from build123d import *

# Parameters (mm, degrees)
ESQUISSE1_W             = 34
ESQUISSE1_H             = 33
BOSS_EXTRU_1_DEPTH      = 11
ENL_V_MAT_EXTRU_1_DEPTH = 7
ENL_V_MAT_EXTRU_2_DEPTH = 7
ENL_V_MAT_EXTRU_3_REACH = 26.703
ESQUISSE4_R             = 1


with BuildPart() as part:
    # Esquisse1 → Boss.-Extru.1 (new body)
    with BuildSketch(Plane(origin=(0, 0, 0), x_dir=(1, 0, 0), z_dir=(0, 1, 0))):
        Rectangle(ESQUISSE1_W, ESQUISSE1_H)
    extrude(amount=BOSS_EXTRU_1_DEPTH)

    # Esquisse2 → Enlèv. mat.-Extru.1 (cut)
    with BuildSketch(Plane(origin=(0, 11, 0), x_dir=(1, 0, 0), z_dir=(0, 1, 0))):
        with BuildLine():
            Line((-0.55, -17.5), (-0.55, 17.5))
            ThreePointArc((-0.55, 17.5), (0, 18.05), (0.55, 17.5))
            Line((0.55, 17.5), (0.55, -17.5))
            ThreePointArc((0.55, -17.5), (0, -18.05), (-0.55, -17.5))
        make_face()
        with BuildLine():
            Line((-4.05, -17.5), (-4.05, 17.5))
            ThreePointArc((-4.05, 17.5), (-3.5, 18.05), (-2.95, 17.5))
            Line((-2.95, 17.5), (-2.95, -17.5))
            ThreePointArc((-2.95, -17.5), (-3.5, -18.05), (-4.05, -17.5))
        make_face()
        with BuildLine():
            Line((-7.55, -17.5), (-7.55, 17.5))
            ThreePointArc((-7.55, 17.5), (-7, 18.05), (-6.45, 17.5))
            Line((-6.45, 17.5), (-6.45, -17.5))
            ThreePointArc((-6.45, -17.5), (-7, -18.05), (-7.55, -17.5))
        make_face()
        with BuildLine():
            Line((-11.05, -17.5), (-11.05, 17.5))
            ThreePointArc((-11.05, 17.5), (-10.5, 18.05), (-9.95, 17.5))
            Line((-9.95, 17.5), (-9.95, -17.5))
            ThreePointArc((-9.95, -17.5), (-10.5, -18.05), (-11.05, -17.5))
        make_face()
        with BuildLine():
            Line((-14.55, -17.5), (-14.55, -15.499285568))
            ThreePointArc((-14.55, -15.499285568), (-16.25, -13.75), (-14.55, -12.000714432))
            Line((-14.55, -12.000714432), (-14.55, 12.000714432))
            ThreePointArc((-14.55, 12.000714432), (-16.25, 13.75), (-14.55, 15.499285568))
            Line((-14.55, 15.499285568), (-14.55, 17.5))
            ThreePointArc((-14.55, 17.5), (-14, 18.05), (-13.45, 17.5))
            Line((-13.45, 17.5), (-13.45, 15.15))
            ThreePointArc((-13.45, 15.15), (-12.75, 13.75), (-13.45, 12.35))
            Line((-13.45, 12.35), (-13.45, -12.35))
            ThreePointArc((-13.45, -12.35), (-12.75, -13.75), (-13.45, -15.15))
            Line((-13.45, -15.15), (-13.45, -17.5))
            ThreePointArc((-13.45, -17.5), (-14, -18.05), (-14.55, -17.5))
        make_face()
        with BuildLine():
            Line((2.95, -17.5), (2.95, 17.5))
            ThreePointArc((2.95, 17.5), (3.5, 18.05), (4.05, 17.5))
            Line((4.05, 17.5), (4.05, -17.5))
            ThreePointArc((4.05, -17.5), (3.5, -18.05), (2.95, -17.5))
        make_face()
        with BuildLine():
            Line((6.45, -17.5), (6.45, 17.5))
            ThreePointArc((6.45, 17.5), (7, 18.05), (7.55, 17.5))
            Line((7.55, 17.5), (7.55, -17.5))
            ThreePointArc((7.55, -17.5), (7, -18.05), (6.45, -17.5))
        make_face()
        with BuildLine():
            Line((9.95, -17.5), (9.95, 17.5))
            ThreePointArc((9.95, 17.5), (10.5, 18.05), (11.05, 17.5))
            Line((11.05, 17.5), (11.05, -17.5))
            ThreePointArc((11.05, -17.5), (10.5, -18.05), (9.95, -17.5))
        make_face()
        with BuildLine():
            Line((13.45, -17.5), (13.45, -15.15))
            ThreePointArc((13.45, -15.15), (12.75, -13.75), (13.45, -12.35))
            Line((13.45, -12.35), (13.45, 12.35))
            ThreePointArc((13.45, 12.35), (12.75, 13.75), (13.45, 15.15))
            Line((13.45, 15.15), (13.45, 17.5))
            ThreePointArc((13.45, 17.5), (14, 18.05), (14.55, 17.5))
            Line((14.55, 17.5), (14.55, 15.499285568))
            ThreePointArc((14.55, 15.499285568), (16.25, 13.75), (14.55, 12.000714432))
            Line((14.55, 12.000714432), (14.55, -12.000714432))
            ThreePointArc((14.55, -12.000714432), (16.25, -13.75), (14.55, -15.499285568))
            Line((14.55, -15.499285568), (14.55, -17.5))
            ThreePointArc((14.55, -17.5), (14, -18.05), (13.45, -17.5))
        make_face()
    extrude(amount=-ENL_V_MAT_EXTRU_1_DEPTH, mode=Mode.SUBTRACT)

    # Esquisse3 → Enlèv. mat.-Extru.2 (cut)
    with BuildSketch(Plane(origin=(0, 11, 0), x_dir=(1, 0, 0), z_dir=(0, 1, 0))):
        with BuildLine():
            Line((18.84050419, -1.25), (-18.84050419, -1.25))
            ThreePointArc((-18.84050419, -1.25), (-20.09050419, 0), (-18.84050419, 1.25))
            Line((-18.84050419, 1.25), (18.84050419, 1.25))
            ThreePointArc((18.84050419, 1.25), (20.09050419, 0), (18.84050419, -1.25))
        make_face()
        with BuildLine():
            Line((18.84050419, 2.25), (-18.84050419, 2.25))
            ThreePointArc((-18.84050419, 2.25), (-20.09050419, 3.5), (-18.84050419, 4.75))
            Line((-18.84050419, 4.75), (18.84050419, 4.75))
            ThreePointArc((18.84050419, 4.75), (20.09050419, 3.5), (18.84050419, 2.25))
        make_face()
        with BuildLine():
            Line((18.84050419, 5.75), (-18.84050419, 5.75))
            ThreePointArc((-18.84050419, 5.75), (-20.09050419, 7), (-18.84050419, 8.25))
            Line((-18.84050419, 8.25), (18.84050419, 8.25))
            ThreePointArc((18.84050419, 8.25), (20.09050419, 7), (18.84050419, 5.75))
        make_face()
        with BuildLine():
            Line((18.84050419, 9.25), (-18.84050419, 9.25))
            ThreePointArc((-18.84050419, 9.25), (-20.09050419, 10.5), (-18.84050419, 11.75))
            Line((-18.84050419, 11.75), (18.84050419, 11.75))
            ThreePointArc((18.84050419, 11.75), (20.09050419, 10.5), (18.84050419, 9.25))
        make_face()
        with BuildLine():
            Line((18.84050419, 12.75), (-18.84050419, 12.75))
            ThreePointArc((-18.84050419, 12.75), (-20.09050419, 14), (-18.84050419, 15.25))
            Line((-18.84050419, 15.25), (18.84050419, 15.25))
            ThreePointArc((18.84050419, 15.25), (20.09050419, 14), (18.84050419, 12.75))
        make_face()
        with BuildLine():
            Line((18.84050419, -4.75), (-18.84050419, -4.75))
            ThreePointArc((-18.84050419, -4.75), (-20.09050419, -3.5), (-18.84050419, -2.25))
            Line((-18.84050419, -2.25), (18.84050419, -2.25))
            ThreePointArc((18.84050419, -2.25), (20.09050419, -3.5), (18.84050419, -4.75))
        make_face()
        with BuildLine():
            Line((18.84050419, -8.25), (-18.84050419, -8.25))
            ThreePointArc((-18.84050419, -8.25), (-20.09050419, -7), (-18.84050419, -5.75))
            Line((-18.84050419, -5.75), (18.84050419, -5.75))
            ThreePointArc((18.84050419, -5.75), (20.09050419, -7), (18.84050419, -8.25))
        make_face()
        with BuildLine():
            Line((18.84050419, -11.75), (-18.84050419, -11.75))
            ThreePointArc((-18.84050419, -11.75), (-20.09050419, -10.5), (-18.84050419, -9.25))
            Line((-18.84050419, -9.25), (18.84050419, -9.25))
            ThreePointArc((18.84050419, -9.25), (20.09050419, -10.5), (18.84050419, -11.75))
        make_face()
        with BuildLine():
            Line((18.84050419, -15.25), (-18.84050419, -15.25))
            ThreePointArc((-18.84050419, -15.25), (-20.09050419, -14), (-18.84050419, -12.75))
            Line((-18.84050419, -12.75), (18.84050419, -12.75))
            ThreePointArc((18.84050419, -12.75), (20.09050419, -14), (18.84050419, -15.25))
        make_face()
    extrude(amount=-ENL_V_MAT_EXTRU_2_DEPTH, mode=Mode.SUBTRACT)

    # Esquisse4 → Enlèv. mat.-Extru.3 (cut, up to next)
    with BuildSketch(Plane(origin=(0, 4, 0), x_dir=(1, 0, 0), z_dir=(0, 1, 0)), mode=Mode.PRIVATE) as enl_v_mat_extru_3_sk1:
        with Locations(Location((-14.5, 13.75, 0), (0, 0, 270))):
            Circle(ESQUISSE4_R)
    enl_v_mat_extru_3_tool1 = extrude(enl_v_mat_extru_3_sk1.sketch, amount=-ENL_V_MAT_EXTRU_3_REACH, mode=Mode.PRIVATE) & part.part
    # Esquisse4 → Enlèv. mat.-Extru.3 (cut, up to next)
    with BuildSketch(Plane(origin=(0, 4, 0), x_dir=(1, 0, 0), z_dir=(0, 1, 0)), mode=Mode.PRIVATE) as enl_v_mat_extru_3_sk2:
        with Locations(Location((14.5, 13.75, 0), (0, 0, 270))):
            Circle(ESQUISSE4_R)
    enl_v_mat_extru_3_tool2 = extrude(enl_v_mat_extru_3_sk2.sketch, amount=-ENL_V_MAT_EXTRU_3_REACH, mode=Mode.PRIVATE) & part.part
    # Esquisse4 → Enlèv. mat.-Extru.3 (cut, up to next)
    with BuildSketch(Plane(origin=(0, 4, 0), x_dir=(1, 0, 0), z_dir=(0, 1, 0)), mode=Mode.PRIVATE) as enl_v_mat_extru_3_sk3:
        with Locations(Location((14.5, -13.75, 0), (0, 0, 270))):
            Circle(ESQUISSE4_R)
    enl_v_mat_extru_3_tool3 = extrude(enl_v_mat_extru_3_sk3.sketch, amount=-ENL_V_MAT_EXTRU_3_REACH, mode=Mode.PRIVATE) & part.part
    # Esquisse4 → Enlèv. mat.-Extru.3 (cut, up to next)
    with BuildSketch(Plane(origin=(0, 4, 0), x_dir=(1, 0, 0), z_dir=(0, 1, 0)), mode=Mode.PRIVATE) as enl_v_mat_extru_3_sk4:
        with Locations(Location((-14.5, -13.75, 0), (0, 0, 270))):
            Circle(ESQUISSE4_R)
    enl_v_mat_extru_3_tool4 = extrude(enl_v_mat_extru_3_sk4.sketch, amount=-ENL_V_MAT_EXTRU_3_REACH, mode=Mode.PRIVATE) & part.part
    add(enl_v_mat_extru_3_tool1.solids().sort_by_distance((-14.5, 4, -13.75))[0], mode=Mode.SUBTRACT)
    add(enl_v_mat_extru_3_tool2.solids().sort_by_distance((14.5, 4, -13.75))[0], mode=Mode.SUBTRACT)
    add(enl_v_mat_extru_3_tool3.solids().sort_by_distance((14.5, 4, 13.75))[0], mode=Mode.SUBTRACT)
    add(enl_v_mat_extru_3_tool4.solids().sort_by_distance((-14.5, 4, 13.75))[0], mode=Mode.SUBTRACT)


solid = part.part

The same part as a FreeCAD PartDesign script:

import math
import FreeCAD as App
import Part
import Sketcher

V = App.Vector
Q = App.Units.Quantity

doc = App.newDocument("Part")
body = doc.addObject("PartDesign::Body", "Body")

# Sketch on XZ plane
sketch1 = body.newObject("Sketcher::SketchObject", "Sketch")
sketch1.AttachmentSupport = (doc.getObject("XZ_Plane"), [""])
sketch1.MapMode = "FlatFace"
sketch1.addGeometry(Part.LineSegment(V(-17, -16, 0), V(-17, 16, 0)), False)
sketch1.addGeometry(Part.LineSegment(V(-17, 16, 0), V(17, 16, 0)), False)
sketch1.addGeometry(Part.LineSegment(V(17, 16, 0), V(17, -16, 0)), False)
sketch1.addGeometry(Part.LineSegment(V(17, -16, 0), V(-17, -16, 0)), False)
sketch1.addConstraint(Sketcher.Constraint("Coincident", 0, 2, 1, 1))
sketch1.addConstraint(Sketcher.Constraint("Coincident", 1, 2, 2, 1))
sketch1.addConstraint(Sketcher.Constraint("Coincident", 2, 2, 3, 1))
sketch1.addConstraint(Sketcher.Constraint("Coincident", 3, 2, 0, 1))
sketch1.addConstraint(Sketcher.Constraint("Vertical", 0))
sketch1.addConstraint(Sketcher.Constraint("Horizontal", 1))
sketch1.addConstraint(Sketcher.Constraint("Vertical", 2))
sketch1.addConstraint(Sketcher.Constraint("Horizontal", 3))
sketch1.addConstraint(Sketcher.Constraint("Symmetric", 0, 2, 2, 2, -1, 1))
sketch1.addConstraint(Sketcher.Constraint("DistanceX", 1, 1, 1, 2, Q("34 mm")))
sketch1.addConstraint(Sketcher.Constraint("DistanceY", 0, 1, 0, 2, Q("33 mm")))
pad1 = body.newObject("PartDesign::Pad", "Pad")
pad1.Profile = sketch1
pad1.Length = 11
pad1.Reversed = True

# Sketch on XZ plane
sketch2 = body.newObject("Sketcher::SketchObject", "Sketch001")
sketch2.AttachmentSupport = (doc.getObject("XZ_Plane"), [""])
sketch2.MapMode = "FlatFace"
sketch2.AttachmentOffset = App.Placement(V(0, 0, -11), App.Rotation())
sketch2.addGeometry(Part.LineSegment(V(-0.6, -17.5, 0), V(-0.6, 17.5, 0)), False)
sketch2.addGeometry(Part.ArcOfCircle(Part.Circle(V(0, 17.5, 0), V(0, 0, 1), 0.6), math.radians(0), math.radians(180)), False)
sketch2.addGeometry(Part.LineSegment(V(0.6, 17.5, 0), V(0.6, -17.5, 0)), False)
sketch2.addGeometry(Part.ArcOfCircle(Part.Circle(V(0, -17.5, 0), V(0, 0, 1), 0.6), math.radians(180), math.radians(360)), False)
sketch2.addGeometry(Part.LineSegment(V(-4, -17.5, 0), V(-4, 17.5, 0)), False)
sketch2.addGeometry(Part.ArcOfCircle(Part.Circle(V(-3.5, 17.5, 0), V(0, 0, 1), 0.6), math.radians(0), math.radians(180)), False)
sketch2.addGeometry(Part.LineSegment(V(-3, 17.5, 0), V(-3, -17.5, 0)), False)
sketch2.addGeometry(Part.ArcOfCircle(Part.Circle(V(-3.5, -17.5, 0), V(0, 0, 1), 0.6), math.radians(180), math.radians(360)), False)
sketch2.addGeometry(Part.LineSegment(V(-7.5, -17.5, 0), V(-7.5, 17.5, 0)), False)
sketch2.addGeometry(Part.ArcOfCircle(Part.Circle(V(-7, 17.5, 0), V(0, 0, 1), 0.6), math.radians(0), math.radians(180)), False)
sketch2.addGeometry(Part.LineSegment(V(-6.5, 17.5, 0), V(-6.5, -17.5, 0)), False)
sketch2.addGeometry(Part.ArcOfCircle(Part.Circle(V(-7, -17.5, 0), V(0, 0, 1), 0.6), math.radians(180), math.radians(360)), False)
sketch2.addGeometry(Part.LineSegment(V(-11.1, -17.5, 0), V(-11.1, 17.5, 0)), False)
sketch2.addGeometry(Part.ArcOfCircle(Part.Circle(V(-10.5, 17.5, 0), V(0, 0, 1), 0.6), math.radians(0), math.radians(180)), False)
sketch2.addGeometry(Part.LineSegment(V(-9.9, 17.5, 0), V(-9.9, -17.5, 0)), False)
sketch2.addGeometry(Part.ArcOfCircle(Part.Circle(V(-10.5, -17.5, 0), V(0, 0, 1), 0.6), math.radians(180), math.radians(360)), False)
sketch2.addGeometry(Part.LineSegment(V(-14.6, 15.5, 0), V(-14.6, 17.5, 0)), False)
sketch2.addGeometry(Part.ArcOfCircle(Part.Circle(V(-14, 17.5, 0), V(0, 0, 1), 0.6), math.radians(0), math.radians(180)), False)
sketch2.addGeometry(Part.LineSegment(V(-13.4, 17.5, 0), V(-13.4, 15.2, 0)), False)
sketch2.addGeometry(Part.ArcOfCircle(Part.Circle(V(-14.5, 13.8, 0), V(0, 0, 1), 1.8), math.radians(-53), math.radians(53)), False)
sketch2.addGeometry(Part.LineSegment(V(-13.4, 12.3, 0), V(-13.4, -12.3, 0)), False)
sketch2.addGeometry(Part.ArcOfCircle(Part.Circle(V(-14.5, -13.8, 0), V(0, 0, 1), 1.8), math.radians(-53), math.radians(53)), False)
sketch2.addGeometry(Part.LineSegment(V(-13.4, -15.2, 0), V(-13.4, -17.5, 0)), False)
sketch2.addGeometry(Part.ArcOfCircle(Part.Circle(V(-14, -17.5, 0), V(0, 0, 1), 0.6), math.radians(180), math.radians(360)), False)
sketch2.addGeometry(Part.LineSegment(V(-14.6, -17.5, 0), V(-14.6, -15.5, 0)), False)
sketch2.addGeometry(Part.ArcOfCircle(Part.Circle(V(-14.5, -13.8, 0), V(0, 0, 1), 1.8), math.radians(92), math.radians(268)), False)
sketch2.addGeometry(Part.LineSegment(V(-14.6, -12, 0), V(-14.6, 12, 0)), False)
sketch2.addGeometry(Part.ArcOfCircle(Part.Circle(V(-14.5, 13.8, 0), V(0, 0, 1), 1.8), math.radians(92), math.radians(268)), False)
sketch2.addGeometry(Part.LineSegment(V(3, -17.5, 0), V(3, 17.5, 0)), False)
sketch2.addGeometry(Part.ArcOfCircle(Part.Circle(V(3.5, 17.5, 0), V(0, 0, 1), 0.6), math.radians(0), math.radians(180)), False)
sketch2.addGeometry(Part.LineSegment(V(4, 17.5, 0), V(4, -17.5, 0)), False)
sketch2.addGeometry(Part.ArcOfCircle(Part.Circle(V(3.5, -17.5, 0), V(0, 0, 1), 0.6), math.radians(180), math.radians(360)), False)
sketch2.addGeometry(Part.LineSegment(V(6.5, -17.5, 0), V(6.5, 17.5, 0)), False)
sketch2.addGeometry(Part.ArcOfCircle(Part.Circle(V(7, 17.5, 0), V(0, 0, 1), 0.6), math.radians(0), math.radians(180)), False)
sketch2.addGeometry(Part.LineSegment(V(7.5, 17.5, 0), V(7.5, -17.5, 0)), False)
sketch2.addGeometry(Part.ArcOfCircle(Part.Circle(V(7, -17.5, 0), V(0, 0, 1), 0.6), math.radians(180), math.radians(360)), False)
sketch2.addGeometry(Part.LineSegment(V(9.9, -17.5, 0), V(9.9, 17.5, 0)), False)
sketch2.addGeometry(Part.ArcOfCircle(Part.Circle(V(10.5, 17.5, 0), V(0, 0, 1), 0.6), math.radians(0), math.radians(180)), False)
sketch2.addGeometry(Part.LineSegment(V(11.1, 17.5, 0), V(11.1, -17.5, 0)), False)
sketch2.addGeometry(Part.ArcOfCircle(Part.Circle(V(10.5, -17.5, 0), V(0, 0, 1), 0.6), math.radians(180), math.radians(360)), False)
sketch2.addGeometry(Part.LineSegment(V(13.4, 15.2, 0), V(13.4, 17.5, 0)), False)
sketch2.addGeometry(Part.ArcOfCircle(Part.Circle(V(14, 17.5, 0), V(0, 0, 1), 0.6), math.radians(0), math.radians(180)), False)
sketch2.addGeometry(Part.LineSegment(V(14.6, 17.5, 0), V(14.6, 15.5, 0)), False)
sketch2.addGeometry(Part.ArcOfCircle(Part.Circle(V(14.5, 13.8, 0), V(0, 0, 1), 1.8), math.radians(-88), math.radians(88)), False)
sketch2.addGeometry(Part.LineSegment(V(14.6, 12, 0), V(14.6, -12, 0)), False)
sketch2.addGeometry(Part.ArcOfCircle(Part.Circle(V(14.5, -13.8, 0), V(0, 0, 1), 1.8), math.radians(-88), math.radians(88)), False)
sketch2.addGeometry(Part.LineSegment(V(14.6, -15.5, 0), V(14.6, -17.5, 0)), False)
sketch2.addGeometry(Part.ArcOfCircle(Part.Circle(V(14, -17.5, 0), V(0, 0, 1), 0.6), math.radians(180), math.radians(360)), False)
sketch2.addGeometry(Part.LineSegment(V(13.4, -17.5, 0), V(13.4, -15.2, 0)), False)
sketch2.addGeometry(Part.ArcOfCircle(Part.Circle(V(14.5, -13.8, 0), V(0, 0, 1), 1.8), math.radians(127), math.radians(233)), False)
sketch2.addGeometry(Part.LineSegment(V(13.4, -12.3, 0), V(13.4, 12.3, 0)), False)
sketch2.addGeometry(Part.ArcOfCircle(Part.Circle(V(14.5, 13.8, 0), V(0, 0, 1), 1.8), math.radians(127), math.radians(233)), False)
sketch2.addConstraint(Sketcher.Constraint("Tangent", 0, 2, 1, 2))
sketch2.addConstraint(Sketcher.Constraint("Tangent", 1, 1, 2, 1))
sketch2.addConstraint(Sketcher.Constraint("Tangent", 2, 2, 3, 2))
sketch2.addConstraint(Sketcher.Constraint("Tangent", 3, 1, 0, 1))
sketch2.addConstraint(Sketcher.Constraint("Tangent", 4, 2, 5, 2))
sketch2.addConstraint(Sketcher.Constraint("Tangent", 5, 1, 6, 1))
sketch2.addConstraint(Sketcher.Constraint("Tangent", 6, 2, 7, 2))
sketch2.addConstraint(Sketcher.Constraint("Tangent", 7, 1, 4, 1))
sketch2.addConstraint(Sketcher.Constraint("Tangent", 8, 2, 9, 2))
sketch2.addConstraint(Sketcher.Constraint("Tangent", 9, 1, 10, 1))
sketch2.addConstraint(Sketcher.Constraint("Tangent", 10, 2, 11, 2))
sketch2.addConstraint(Sketcher.Constraint("Tangent", 11, 1, 8, 1))
sketch2.addConstraint(Sketcher.Constraint("Tangent", 12, 2, 13, 2))
sketch2.addConstraint(Sketcher.Constraint("Tangent", 13, 1, 14, 1))
sketch2.addConstraint(Sketcher.Constraint("Tangent", 14, 2, 15, 2))
sketch2.addConstraint(Sketcher.Constraint("Tangent", 15, 1, 12, 1))
sketch2.addConstraint(Sketcher.Constraint("Tangent", 16, 2, 17, 2))
sketch2.addConstraint(Sketcher.Constraint("Tangent", 17, 1, 18, 1))
sketch2.addConstraint(Sketcher.Constraint("Coincident", 18, 2, 19, 2))
sketch2.addConstraint(Sketcher.Constraint("Coincident", 19, 1, 20, 1))
sketch2.addConstraint(Sketcher.Constraint("Coincident", 20, 2, 21, 2))
sketch2.addConstraint(Sketcher.Constraint("Coincident", 21, 1, 22, 1))
sketch2.addConstraint(Sketcher.Constraint("Tangent", 22, 2, 23, 2))
sketch2.addConstraint(Sketcher.Constraint("Tangent", 23, 1, 24, 1))
sketch2.addConstraint(Sketcher.Constraint("Coincident", 24, 2, 25, 2))
sketch2.addConstraint(Sketcher.Constraint("Coincident", 25, 1, 26, 1))
sketch2.addConstraint(Sketcher.Constraint("Coincident", 26, 2, 27, 2))
sketch2.addConstraint(Sketcher.Constraint("Coincident", 27, 1, 16, 1))
sketch2.addConstraint(Sketcher.Constraint("Tangent", 28, 2, 29, 2))
sketch2.addConstraint(Sketcher.Constraint("Tangent", 29, 1, 30, 1))
sketch2.addConstraint(Sketcher.Constraint("Tangent", 30, 2, 31, 2))
sketch2.addConstraint(Sketcher.Constraint("Tangent", 31, 1, 28, 1))
sketch2.addConstraint(Sketcher.Constraint("Tangent", 32, 2, 33, 2))
sketch2.addConstraint(Sketcher.Constraint("Tangent", 33, 1, 34, 1))
sketch2.addConstraint(Sketcher.Constraint("Tangent", 34, 2, 35, 2))
sketch2.addConstraint(Sketcher.Constraint("Tangent", 35, 1, 32, 1))
sketch2.addConstraint(Sketcher.Constraint("Tangent", 36, 2, 37, 2))
sketch2.addConstraint(Sketcher.Constraint("Tangent", 37, 1, 38, 1))
sketch2.addConstraint(Sketcher.Constraint("Tangent", 38, 2, 39, 2))
sketch2.addConstraint(Sketcher.Constraint("Tangent", 39, 1, 36, 1))
sketch2.addConstraint(Sketcher.Constraint("Tangent", 40, 2, 41, 2))
sketch2.addConstraint(Sketcher.Constraint("Tangent", 41, 1, 42, 1))
sketch2.addConstraint(Sketcher.Constraint("Coincident", 42, 2, 43, 2))
sketch2.addConstraint(Sketcher.Constraint("Coincident", 43, 1, 44, 1))
sketch2.addConstraint(Sketcher.Constraint("Coincident", 44, 2, 45, 2))
sketch2.addConstraint(Sketcher.Constraint("Coincident", 45, 1, 46, 1))
sketch2.addConstraint(Sketcher.Constraint("Tangent", 46, 2, 47, 2))
sketch2.addConstraint(Sketcher.Constraint("Tangent", 47, 1, 48, 1))
sketch2.addConstraint(Sketcher.Constraint("Coincident", 48, 2, 49, 2))
sketch2.addConstraint(Sketcher.Constraint("Coincident", 49, 1, 50, 1))
sketch2.addConstraint(Sketcher.Constraint("Coincident", 50, 2, 51, 2))
sketch2.addConstraint(Sketcher.Constraint("Coincident", 51, 1, 40, 1))
sketch2.addConstraint(Sketcher.Constraint("Vertical", 0))
sketch2.addConstraint(Sketcher.Constraint("Vertical", 2))
sketch2.addConstraint(Sketcher.Constraint("Vertical", 4))
sketch2.addConstraint(Sketcher.Constraint("Vertical", 6))
sketch2.addConstraint(Sketcher.Constraint("Vertical", 8))
sketch2.addConstraint(Sketcher.Constraint("Vertical", 10))
sketch2.addConstraint(Sketcher.Constraint("Vertical", 12))
sketch2.addConstraint(Sketcher.Constraint("Vertical", 14))
sketch2.addConstraint(Sketcher.Constraint("Vertical", 16))
sketch2.addConstraint(Sketcher.Constraint("Vertical", 18))
sketch2.addConstraint(Sketcher.Constraint("Vertical", 20))
sketch2.addConstraint(Sketcher.Constraint("Vertical", 22))
sketch2.addConstraint(Sketcher.Constraint("Vertical", 24))
sketch2.addConstraint(Sketcher.Constraint("Vertical", 26))
sketch2.addConstraint(Sketcher.Constraint("Vertical", 28))
sketch2.addConstraint(Sketcher.Constraint("Vertical", 30))
sketch2.addConstraint(Sketcher.Constraint("Vertical", 32))
sketch2.addConstraint(Sketcher.Constraint("Vertical", 34))
sketch2.addConstraint(Sketcher.Constraint("Vertical", 36))
sketch2.addConstraint(Sketcher.Constraint("Vertical", 38))
sketch2.addConstraint(Sketcher.Constraint("Vertical", 40))
sketch2.addConstraint(Sketcher.Constraint("Vertical", 42))
sketch2.addConstraint(Sketcher.Constraint("Vertical", 44))
sketch2.addConstraint(Sketcher.Constraint("Vertical", 46))
sketch2.addConstraint(Sketcher.Constraint("Vertical", 48))
sketch2.addConstraint(Sketcher.Constraint("Vertical", 50))
sketch2.addConstraint(Sketcher.Constraint("Coincident", 25, 3, 21, 3))
sketch2.addConstraint(Sketcher.Constraint("Coincident", 27, 3, 19, 3))
sketch2.addConstraint(Sketcher.Constraint("Coincident", 49, 3, 45, 3))
sketch2.addConstraint(Sketcher.Constraint("Coincident", 51, 3, 43, 3))
sketch2.addConstraint(Sketcher.Constraint("Equal", 3, 5))
sketch2.addConstraint(Sketcher.Constraint("Equal", 7, 9))
sketch2.addConstraint(Sketcher.Constraint("Equal", 11, 13))
sketch2.addConstraint(Sketcher.Constraint("Equal", 15, 17))
sketch2.addConstraint(Sketcher.Constraint("Equal", 19, 21))
sketch2.addConstraint(Sketcher.Constraint("Equal", 17, 23))
sketch2.addConstraint(Sketcher.Constraint("Equal", 21, 25))
sketch2.addConstraint(Sketcher.Constraint("Equal", 25, 27))
sketch2.addConstraint(Sketcher.Constraint("Equal", 23, 29))
sketch2.addConstraint(Sketcher.Constraint("Equal", 31, 33))
sketch2.addConstraint(Sketcher.Constraint("Equal", 35, 37))
sketch2.addConstraint(Sketcher.Constraint("Equal", 39, 41))
sketch2.addConstraint(Sketcher.Constraint("Equal", 27, 43))
sketch2.addConstraint(Sketcher.Constraint("Equal", 43, 45))
sketch2.addConstraint(Sketcher.Constraint("Equal", 41, 47))
sketch2.addConstraint(Sketcher.Constraint("Equal", 45, 49))
sketch2.addConstraint(Sketcher.Constraint("Equal", 49, 51))
sketch2.addConstraint(Sketcher.Constraint("Symmetric", 1, 3, 3, 3, -1, 1))
sketch2.addConstraint(Sketcher.Constraint("Symmetric", 7, 3, 29, 3, -1, 1))
sketch2.addConstraint(Sketcher.Constraint("Symmetric", 11, 3, 33, 3, -1, 1))
sketch2.addConstraint(Sketcher.Constraint("Symmetric", 15, 3, 37, 3, -1, 1))
sketch2.addConstraint(Sketcher.Constraint("Symmetric", 23, 3, 41, 3, -1, 1))
sketch2.addConstraint(Sketcher.Constraint("Symmetric", 21, 3, 43, 3, -1, 1))
sketch2.addConstraint(Sketcher.Constraint("Symmetric", 19, 3, 45, 3, -1, 1))
sketch2.addConstraint(Sketcher.Constraint("Symmetric", 17, 3, 47, 3, -1, 1))
sketch2.addConstraint(Sketcher.Constraint("Symmetric", 17, 3, 41, 3, -2))
sketch2.addConstraint(Sketcher.Constraint("Symmetric", 19, 3, 43, 3, -2))
sketch2.addConstraint(Sketcher.Constraint("Horizontal", 1, 3, 5, 3))
sketch2.addConstraint(Sketcher.Constraint("Horizontal", 3, 3, 7, 3))
sketch2.addConstraint(Sketcher.Constraint("Horizontal", 5, 3, 9, 3))
sketch2.addConstraint(Sketcher.Constraint("Horizontal", 7, 3, 11, 3))
sketch2.addConstraint(Sketcher.Constraint("Horizontal", 9, 3, 13, 3))
sketch2.addConstraint(Sketcher.Constraint("Horizontal", 11, 3, 15, 3))
sketch2.addConstraint(Sketcher.Constraint("Horizontal", 13, 3, 17, 3))
sketch2.addConstraint(Sketcher.Constraint("Horizontal", 23, 3, 31, 3))
sketch2.addConstraint(Sketcher.Constraint("Horizontal", 31, 3, 35, 3))
sketch2.addConstraint(Sketcher.Constraint("Horizontal", 35, 3, 39, 3))
sketch2.addConstraint(Sketcher.Constraint("Horizontal", 26, 2, 43, 1))
sketch2.addConstraint(Sketcher.Constraint("Horizontal", 20, 2, 49, 1))
sketch2.addConstraint(Sketcher.Constraint("Vertical", 18, 2, 19, 1))
sketch2.addConstraint(Sketcher.Constraint("Vertical", 24, 2, 25, 1))
sketch2.addConstraint(Sketcher.Constraint("DistanceY", 0, 1, 0, 2, Q("35 mm")))
sketch2.addConstraint(Sketcher.Constraint("Radius", 1, Q("0.55 mm")))
sketch2.addConstraint(Sketcher.Constraint("Radius", 19, Q("1.75 mm")))
sketch2.addConstraint(Sketcher.Constraint("DistanceY", 20, 2, 20, 1, Q("24.7 mm")))
sketch2.addConstraint(Sketcher.Constraint("DistanceX", 9, 3, -1, 1, Q("7 mm")))
sketch2.addConstraint(Sketcher.Constraint("DistanceX", 17, 3, -1, 1, Q("14 mm")))
sketch2.addConstraint(Sketcher.Constraint("DistanceY", 18, 2, 18, 1, Q("2.35 mm")))
sketch2.addConstraint(Sketcher.Constraint("DistanceX", 5, 3, -1, 1, Q("3.5 mm")))
sketch2.addConstraint(Sketcher.Constraint("DistanceX", 13, 3, -1, 1, Q("10.5 mm")))
pocket1 = body.newObject("PartDesign::Pocket", "Pocket")
pocket1.Profile = sketch2
pocket1.Length = 7
pocket1.Reversed = True

# Sketch on XZ plane
sketch3 = body.newObject("Sketcher::SketchObject", "Sketch002")
sketch3.AttachmentSupport = (doc.getObject("XZ_Plane"), [""])
sketch3.MapMode = "FlatFace"
sketch3.AttachmentOffset = App.Placement(V(0, 0, -11), App.Rotation())
sketch3.addGeometry(Part.LineSegment(V(-18.8, 1.2, 0), V(18.8, 1.2, 0)), False)
sketch3.addGeometry(Part.ArcOfCircle(Part.Circle(V(18.8, 0, 0), V(0, 0, 1), 1.2), math.radians(-90), math.radians(90)), False)
sketch3.addGeometry(Part.LineSegment(V(18.8, -1.2, 0), V(-18.8, -1.2, 0)), False)
sketch3.addGeometry(Part.ArcOfCircle(Part.Circle(V(-18.8, 0, 0), V(0, 0, 1), 1.2), math.radians(90), math.radians(270)), False)
sketch3.addGeometry(Part.LineSegment(V(-18.8, -2.2, 0), V(18.8, -2.2, 0)), False)
sketch3.addGeometry(Part.ArcOfCircle(Part.Circle(V(18.8, -3.5, 0), V(0, 0, 1), 1.2), math.radians(-90), math.radians(90)), False)
sketch3.addGeometry(Part.LineSegment(V(18.8, -4.8, 0), V(-18.8, -4.8, 0)), False)
sketch3.addGeometry(Part.ArcOfCircle(Part.Circle(V(-18.8, -3.5, 0), V(0, 0, 1), 1.2), math.radians(90), math.radians(270)), False)
sketch3.addGeometry(Part.LineSegment(V(-18.8, -5.8, 0), V(18.8, -5.8, 0)), False)
sketch3.addGeometry(Part.ArcOfCircle(Part.Circle(V(18.8, -7, 0), V(0, 0, 1), 1.2), math.radians(-90), math.radians(90)), False)
sketch3.addGeometry(Part.LineSegment(V(18.8, -8.2, 0), V(-18.8, -8.2, 0)), False)
sketch3.addGeometry(Part.ArcOfCircle(Part.Circle(V(-18.8, -7, 0), V(0, 0, 1), 1.2), math.radians(90), math.radians(270)), False)
sketch3.addGeometry(Part.LineSegment(V(-18.8, -9.2, 0), V(18.8, -9.2, 0)), False)
sketch3.addGeometry(Part.ArcOfCircle(Part.Circle(V(18.8, -10.5, 0), V(0, 0, 1), 1.2), math.radians(-90), math.radians(90)), False)
sketch3.addGeometry(Part.LineSegment(V(18.8, -11.8, 0), V(-18.8, -11.8, 0)), False)
sketch3.addGeometry(Part.ArcOfCircle(Part.Circle(V(-18.8, -10.5, 0), V(0, 0, 1), 1.2), math.radians(90), math.radians(270)), False)
sketch3.addGeometry(Part.LineSegment(V(-18.8, -12.8, 0), V(18.8, -12.8, 0)), False)
sketch3.addGeometry(Part.ArcOfCircle(Part.Circle(V(18.8, -14, 0), V(0, 0, 1), 1.2), math.radians(-90), math.radians(90)), False)
sketch3.addGeometry(Part.LineSegment(V(18.8, -15.2, 0), V(-18.8, -15.2, 0)), False)
sketch3.addGeometry(Part.ArcOfCircle(Part.Circle(V(-18.8, -14, 0), V(0, 0, 1), 1.2), math.radians(90), math.radians(270)), False)
sketch3.addGeometry(Part.LineSegment(V(-18.8, 4.8, 0), V(18.8, 4.8, 0)), False)
sketch3.addGeometry(Part.ArcOfCircle(Part.Circle(V(18.8, 3.5, 0), V(0, 0, 1), 1.2), math.radians(-90), math.radians(90)), False)
sketch3.addGeometry(Part.LineSegment(V(18.8, 2.2, 0), V(-18.8, 2.2, 0)), False)
sketch3.addGeometry(Part.ArcOfCircle(Part.Circle(V(-18.8, 3.5, 0), V(0, 0, 1), 1.2), math.radians(90), math.radians(270)), False)
sketch3.addGeometry(Part.LineSegment(V(-18.8, 8.2, 0), V(18.8, 8.2, 0)), False)
sketch3.addGeometry(Part.ArcOfCircle(Part.Circle(V(18.8, 7, 0), V(0, 0, 1), 1.2), math.radians(-90), math.radians(90)), False)
sketch3.addGeometry(Part.LineSegment(V(18.8, 5.8, 0), V(-18.8, 5.8, 0)), False)
sketch3.addGeometry(Part.ArcOfCircle(Part.Circle(V(-18.8, 7, 0), V(0, 0, 1), 1.2), math.radians(90), math.radians(270)), False)
sketch3.addGeometry(Part.LineSegment(V(-18.8, 11.8, 0), V(18.8, 11.8, 0)), False)
sketch3.addGeometry(Part.ArcOfCircle(Part.Circle(V(18.8, 10.5, 0), V(0, 0, 1), 1.2), math.radians(-90), math.radians(90)), False)
sketch3.addGeometry(Part.LineSegment(V(18.8, 9.2, 0), V(-18.8, 9.2, 0)), False)
sketch3.addGeometry(Part.ArcOfCircle(Part.Circle(V(-18.8, 10.5, 0), V(0, 0, 1), 1.2), math.radians(90), math.radians(270)), False)
sketch3.addGeometry(Part.LineSegment(V(-18.8, 15.2, 0), V(18.8, 15.2, 0)), False)
sketch3.addGeometry(Part.ArcOfCircle(Part.Circle(V(18.8, 14, 0), V(0, 0, 1), 1.2), math.radians(-90), math.radians(90)), False)
sketch3.addGeometry(Part.LineSegment(V(18.8, 12.8, 0), V(-18.8, 12.8, 0)), False)
sketch3.addGeometry(Part.ArcOfCircle(Part.Circle(V(-18.8, 14, 0), V(0, 0, 1), 1.2), math.radians(90), math.radians(270)), False)
sketch3.addConstraint(Sketcher.Constraint("Tangent", 0, 2, 1, 2))
sketch3.addConstraint(Sketcher.Constraint("Tangent", 1, 1, 2, 1))
sketch3.addConstraint(Sketcher.Constraint("Tangent", 2, 2, 3, 2))
sketch3.addConstraint(Sketcher.Constraint("Tangent", 3, 1, 0, 1))
sketch3.addConstraint(Sketcher.Constraint("Tangent", 4, 2, 5, 2))
sketch3.addConstraint(Sketcher.Constraint("Tangent", 5, 1, 6, 1))
sketch3.addConstraint(Sketcher.Constraint("Tangent", 6, 2, 7, 2))
sketch3.addConstraint(Sketcher.Constraint("Tangent", 7, 1, 4, 1))
sketch3.addConstraint(Sketcher.Constraint("Tangent", 8, 2, 9, 2))
sketch3.addConstraint(Sketcher.Constraint("Tangent", 9, 1, 10, 1))
sketch3.addConstraint(Sketcher.Constraint("Tangent", 10, 2, 11, 2))
sketch3.addConstraint(Sketcher.Constraint("Tangent", 11, 1, 8, 1))
sketch3.addConstraint(Sketcher.Constraint("Tangent", 12, 2, 13, 2))
sketch3.addConstraint(Sketcher.Constraint("Tangent", 13, 1, 14, 1))
sketch3.addConstraint(Sketcher.Constraint("Tangent", 14, 2, 15, 2))
sketch3.addConstraint(Sketcher.Constraint("Tangent", 15, 1, 12, 1))
sketch3.addConstraint(Sketcher.Constraint("Tangent", 16, 2, 17, 2))
sketch3.addConstraint(Sketcher.Constraint("Tangent", 17, 1, 18, 1))
sketch3.addConstraint(Sketcher.Constraint("Tangent", 18, 2, 19, 2))
sketch3.addConstraint(Sketcher.Constraint("Tangent", 19, 1, 16, 1))
sketch3.addConstraint(Sketcher.Constraint("Tangent", 20, 2, 21, 2))
sketch3.addConstraint(Sketcher.Constraint("Tangent", 21, 1, 22, 1))
sketch3.addConstraint(Sketcher.Constraint("Tangent", 22, 2, 23, 2))
sketch3.addConstraint(Sketcher.Constraint("Tangent", 23, 1, 20, 1))
sketch3.addConstraint(Sketcher.Constraint("Tangent", 24, 2, 25, 2))
sketch3.addConstraint(Sketcher.Constraint("Tangent", 25, 1, 26, 1))
sketch3.addConstraint(Sketcher.Constraint("Tangent", 26, 2, 27, 2))
sketch3.addConstraint(Sketcher.Constraint("Tangent", 27, 1, 24, 1))
sketch3.addConstraint(Sketcher.Constraint("Tangent", 28, 2, 29, 2))
sketch3.addConstraint(Sketcher.Constraint("Tangent", 29, 1, 30, 1))
sketch3.addConstraint(Sketcher.Constraint("Tangent", 30, 2, 31, 2))
sketch3.addConstraint(Sketcher.Constraint("Tangent", 31, 1, 28, 1))
sketch3.addConstraint(Sketcher.Constraint("Tangent", 32, 2, 33, 2))
sketch3.addConstraint(Sketcher.Constraint("Tangent", 33, 1, 34, 1))
sketch3.addConstraint(Sketcher.Constraint("Tangent", 34, 2, 35, 2))
sketch3.addConstraint(Sketcher.Constraint("Tangent", 35, 1, 32, 1))
sketch3.addConstraint(Sketcher.Constraint("Horizontal", 0))
sketch3.addConstraint(Sketcher.Constraint("Horizontal", 2))
sketch3.addConstraint(Sketcher.Constraint("Horizontal", 4))
sketch3.addConstraint(Sketcher.Constraint("Horizontal", 6))
sketch3.addConstraint(Sketcher.Constraint("Horizontal", 8))
sketch3.addConstraint(Sketcher.Constraint("Horizontal", 10))
sketch3.addConstraint(Sketcher.Constraint("Horizontal", 12))
sketch3.addConstraint(Sketcher.Constraint("Horizontal", 14))
sketch3.addConstraint(Sketcher.Constraint("Horizontal", 16))
sketch3.addConstraint(Sketcher.Constraint("Horizontal", 18))
sketch3.addConstraint(Sketcher.Constraint("Horizontal", 20))
sketch3.addConstraint(Sketcher.Constraint("Horizontal", 22))
sketch3.addConstraint(Sketcher.Constraint("Horizontal", 24))
sketch3.addConstraint(Sketcher.Constraint("Horizontal", 26))
sketch3.addConstraint(Sketcher.Constraint("Horizontal", 28))
sketch3.addConstraint(Sketcher.Constraint("Horizontal", 30))
sketch3.addConstraint(Sketcher.Constraint("Horizontal", 32))
sketch3.addConstraint(Sketcher.Constraint("Horizontal", 34))
sketch3.addConstraint(Sketcher.Constraint("Equal", 3, 5))
sketch3.addConstraint(Sketcher.Constraint("Equal", 7, 9))
sketch3.addConstraint(Sketcher.Constraint("Equal", 11, 13))
sketch3.addConstraint(Sketcher.Constraint("Equal", 15, 17))
sketch3.addConstraint(Sketcher.Constraint("Equal", 19, 21))
sketch3.addConstraint(Sketcher.Constraint("Equal", 23, 25))
sketch3.addConstraint(Sketcher.Constraint("Equal", 27, 29))
sketch3.addConstraint(Sketcher.Constraint("Equal", 31, 33))
sketch3.addConstraint(Sketcher.Constraint("Symmetric", 1, 3, 3, 3, -1, 1))
sketch3.addConstraint(Sketcher.Constraint("Symmetric", 7, 3, 21, 3, -1, 1))
sketch3.addConstraint(Sketcher.Constraint("Symmetric", 11, 3, 25, 3, -1, 1))
sketch3.addConstraint(Sketcher.Constraint("Symmetric", 15, 3, 29, 3, -1, 1))
sketch3.addConstraint(Sketcher.Constraint("Symmetric", 19, 3, 33, 3, -1, 1))
sketch3.addConstraint(Sketcher.Constraint("Vertical", 1, 3, 5, 3))
sketch3.addConstraint(Sketcher.Constraint("Vertical", 3, 3, 7, 3))
sketch3.addConstraint(Sketcher.Constraint("Vertical", 5, 3, 9, 3))
sketch3.addConstraint(Sketcher.Constraint("Vertical", 7, 3, 11, 3))
sketch3.addConstraint(Sketcher.Constraint("Vertical", 9, 3, 13, 3))
sketch3.addConstraint(Sketcher.Constraint("Vertical", 11, 3, 15, 3))
sketch3.addConstraint(Sketcher.Constraint("Vertical", 13, 3, 17, 3))
sketch3.addConstraint(Sketcher.Constraint("Vertical", 15, 3, 19, 3))
sketch3.addConstraint(Sketcher.Constraint("Vertical", 19, 3, 23, 3))
sketch3.addConstraint(Sketcher.Constraint("Vertical", 23, 3, 27, 3))
sketch3.addConstraint(Sketcher.Constraint("Vertical", 27, 3, 31, 3))
sketch3.addConstraint(Sketcher.Constraint("Vertical", 31, 3, 35, 3))
sketch3.addConstraint(Sketcher.Constraint("Radius", 1, Q("1.25 mm")))
sketch3.addConstraint(Sketcher.Constraint("DistanceY", 9, 3, -1, 1, Q("7 mm")))
sketch3.addConstraint(Sketcher.Constraint("DistanceY", 17, 3, -1, 1, Q("14 mm")))
sketch3.addConstraint(Sketcher.Constraint("DistanceY", 13, 3, 5, 3, Q("7 mm")))
sketch3.addConstraint(Sketcher.Constraint("DistanceY", 5, 3, 21, 3, Q("7 mm")))
sketch3.addConstraint(Sketcher.Constraint("DistanceX", 0, 1, 0, 2, Q("37.681008 mm")))
pocket2 = body.newObject("PartDesign::Pocket", "Pocket001")
pocket2.Profile = sketch3
pocket2.Length = 7
pocket2.Reversed = True

# Sketch on XZ plane
sketch4 = body.newObject("Sketcher::SketchObject", "Sketch003")
sketch4.AttachmentSupport = (doc.getObject("XZ_Plane"), [""])
sketch4.MapMode = "FlatFace"
sketch4.AttachmentOffset = App.Placement(V(0, 0, -4), App.Rotation())
sketch4.addGeometry(Part.Circle(V(-14.5, -13.8, 0), V(0, 0, 1), 1), False)
sketch4.addConstraint(Sketcher.Constraint("Diameter", 0, Q("2 mm")))
sketch4.addConstraint(Sketcher.Constraint("DistanceX", 0, 3, -1, 1, Q("14.5 mm")))
sketch4.addConstraint(Sketcher.Constraint("DistanceY", 0, 3, -1, 1, Q("13.75 mm")))
pocket3 = body.newObject("PartDesign::Pocket", "Pocket002")
pocket3.Profile = sketch4
pocket3.Type = "UpToFirst"
pocket3.Reversed = True

# Sketch on XZ plane
sketch5 = body.newObject("Sketcher::SketchObject", "Sketch004")
sketch5.AttachmentSupport = (doc.getObject("XZ_Plane"), [""])
sketch5.MapMode = "FlatFace"
sketch5.AttachmentOffset = App.Placement(V(0, 0, -4), App.Rotation())
sketch5.addGeometry(Part.Circle(V(14.5, -13.8, 0), V(0, 0, 1), 1), False)
sketch5.addConstraint(Sketcher.Constraint("Diameter", 0, Q("2 mm")))
sketch5.addConstraint(Sketcher.Constraint("DistanceX", -1, 1, 0, 3, Q("14.5 mm")))
sketch5.addConstraint(Sketcher.Constraint("DistanceY", 0, 3, -1, 1, Q("13.75 mm")))
pocket4 = body.newObject("PartDesign::Pocket", "Pocket003")
pocket4.Profile = sketch5
pocket4.Type = "UpToFirst"
pocket4.Reversed = True

# Sketch on XZ plane
sketch6 = body.newObject("Sketcher::SketchObject", "Sketch005")
sketch6.AttachmentSupport = (doc.getObject("XZ_Plane"), [""])
sketch6.MapMode = "FlatFace"
sketch6.AttachmentOffset = App.Placement(V(0, 0, -4), App.Rotation())
sketch6.addGeometry(Part.Circle(V(14.5, 13.8, 0), V(0, 0, 1), 1), False)
sketch6.addConstraint(Sketcher.Constraint("Diameter", 0, Q("2 mm")))
sketch6.addConstraint(Sketcher.Constraint("DistanceX", -1, 1, 0, 3, Q("14.5 mm")))
sketch6.addConstraint(Sketcher.Constraint("DistanceY", -1, 1, 0, 3, Q("13.75 mm")))
pocket5 = body.newObject("PartDesign::Pocket", "Pocket004")
pocket5.Profile = sketch6
pocket5.Type = "UpToFirst"
pocket5.Reversed = True

# Sketch on XZ plane
sketch7 = body.newObject("Sketcher::SketchObject", "Sketch006")
sketch7.AttachmentSupport = (doc.getObject("XZ_Plane"), [""])
sketch7.MapMode = "FlatFace"
sketch7.AttachmentOffset = App.Placement(V(0, 0, -4), App.Rotation())
sketch7.addGeometry(Part.Circle(V(-14.5, 13.8, 0), V(0, 0, 1), 1), False)
sketch7.addConstraint(Sketcher.Constraint("Diameter", 0, Q("2 mm")))
sketch7.addConstraint(Sketcher.Constraint("DistanceX", 0, 3, -1, 1, Q("14.5 mm")))
sketch7.addConstraint(Sketcher.Constraint("DistanceY", -1, 1, 0, 3, Q("13.75 mm")))
pocket6 = body.newObject("PartDesign::Pocket", "Pocket005")
pocket6.Profile = sketch7
pocket6.Type = "UpToFirst"
pocket6.Reversed = True

doc.recompute()
